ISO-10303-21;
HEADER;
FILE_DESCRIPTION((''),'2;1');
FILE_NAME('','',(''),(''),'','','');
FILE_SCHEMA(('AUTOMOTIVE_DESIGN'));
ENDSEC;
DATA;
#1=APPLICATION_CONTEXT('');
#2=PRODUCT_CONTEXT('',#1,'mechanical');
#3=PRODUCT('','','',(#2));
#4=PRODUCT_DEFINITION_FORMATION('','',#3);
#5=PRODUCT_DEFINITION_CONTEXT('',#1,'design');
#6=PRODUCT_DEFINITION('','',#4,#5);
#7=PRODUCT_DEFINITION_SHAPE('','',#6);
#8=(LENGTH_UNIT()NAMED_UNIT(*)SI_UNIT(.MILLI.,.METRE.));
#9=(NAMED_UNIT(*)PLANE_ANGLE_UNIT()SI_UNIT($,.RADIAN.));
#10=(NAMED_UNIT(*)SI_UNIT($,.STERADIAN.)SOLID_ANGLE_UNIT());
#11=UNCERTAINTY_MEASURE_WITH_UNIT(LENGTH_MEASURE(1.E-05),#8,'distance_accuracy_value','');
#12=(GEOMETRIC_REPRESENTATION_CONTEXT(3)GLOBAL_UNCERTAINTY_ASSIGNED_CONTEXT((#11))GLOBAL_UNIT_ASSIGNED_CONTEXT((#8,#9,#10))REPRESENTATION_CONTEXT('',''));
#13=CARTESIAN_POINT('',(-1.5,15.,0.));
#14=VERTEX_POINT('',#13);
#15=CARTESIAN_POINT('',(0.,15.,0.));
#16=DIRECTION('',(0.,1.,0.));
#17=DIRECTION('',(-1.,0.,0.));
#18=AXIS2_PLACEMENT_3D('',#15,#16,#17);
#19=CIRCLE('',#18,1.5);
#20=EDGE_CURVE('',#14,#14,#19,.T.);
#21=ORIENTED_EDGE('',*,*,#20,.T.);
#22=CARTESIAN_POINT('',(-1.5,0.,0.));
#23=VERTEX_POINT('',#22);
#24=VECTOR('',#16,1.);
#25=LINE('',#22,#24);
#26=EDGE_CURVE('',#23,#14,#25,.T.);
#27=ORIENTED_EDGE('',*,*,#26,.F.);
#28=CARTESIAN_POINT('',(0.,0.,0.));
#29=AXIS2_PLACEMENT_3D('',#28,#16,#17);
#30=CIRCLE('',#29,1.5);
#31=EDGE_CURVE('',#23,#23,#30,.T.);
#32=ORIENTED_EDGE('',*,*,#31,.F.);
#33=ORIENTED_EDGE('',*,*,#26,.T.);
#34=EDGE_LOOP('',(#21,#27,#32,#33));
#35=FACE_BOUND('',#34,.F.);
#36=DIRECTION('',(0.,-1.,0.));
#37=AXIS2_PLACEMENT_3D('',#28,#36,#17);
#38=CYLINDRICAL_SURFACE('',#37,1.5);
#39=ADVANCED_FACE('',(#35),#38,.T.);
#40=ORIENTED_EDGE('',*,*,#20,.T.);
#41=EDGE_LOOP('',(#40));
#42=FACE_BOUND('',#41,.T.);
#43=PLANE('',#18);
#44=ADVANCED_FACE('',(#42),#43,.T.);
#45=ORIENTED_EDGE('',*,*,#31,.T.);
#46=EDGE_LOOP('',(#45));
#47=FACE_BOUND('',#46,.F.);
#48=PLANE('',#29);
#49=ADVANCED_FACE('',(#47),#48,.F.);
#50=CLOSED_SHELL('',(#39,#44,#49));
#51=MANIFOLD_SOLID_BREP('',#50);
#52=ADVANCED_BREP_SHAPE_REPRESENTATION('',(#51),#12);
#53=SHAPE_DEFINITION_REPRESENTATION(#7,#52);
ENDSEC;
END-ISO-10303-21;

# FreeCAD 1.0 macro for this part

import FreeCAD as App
import Part
import Sketcher
from FreeCAD import Vector

doc = App.newDocument("Part")
body = doc.addObject("PartDesign::Body", "Body")

# Sketch on XZ plane
sketch1 = doc.addObject("Sketcher::SketchObject", "Sketch")
body.addObject(sketch1)
sketch1.AttachmentSupport = (doc.XZ_Plane, [""])
sketch1.MapMode = "FlatFace"
sketch1.addGeometry(Part.Circle(Vector(0, 0, 0), Vector(0, 0, 1), 1.5), False)
sketch1.addConstraint([
    Sketcher.Constraint("Coincident", 0, 3, -1, 1),
    Sketcher.Constraint("Diameter", 0, 3.0),
])
pad1 = doc.addObject("PartDesign::Pad", "Pad")
body.addObject(pad1)
pad1.Profile = sketch1
pad1.Length = 15
pad1.Reversed = True

doc.recompute()
